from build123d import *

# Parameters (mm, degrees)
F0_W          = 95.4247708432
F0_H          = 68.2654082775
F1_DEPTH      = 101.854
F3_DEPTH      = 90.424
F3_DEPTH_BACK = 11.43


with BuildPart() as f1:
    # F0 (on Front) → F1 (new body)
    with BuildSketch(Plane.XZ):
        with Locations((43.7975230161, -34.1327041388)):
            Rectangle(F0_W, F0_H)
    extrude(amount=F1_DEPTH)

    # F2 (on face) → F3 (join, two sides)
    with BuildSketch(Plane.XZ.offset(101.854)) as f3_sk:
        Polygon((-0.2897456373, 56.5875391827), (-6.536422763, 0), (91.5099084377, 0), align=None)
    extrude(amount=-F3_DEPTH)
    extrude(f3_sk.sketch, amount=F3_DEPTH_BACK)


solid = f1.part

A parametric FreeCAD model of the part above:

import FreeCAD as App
import Part
import Sketcher
Q = App.Units.Quantity


def add_polygon(sketch, points):
    """Adds a closed chain of lines whose ends are joined by coincident constraints."""
    first, n = sketch.GeometryCount, len(points)
    for a, b in zip(points, points[1:] + points[:1]):
        sketch.addGeometry(Part.LineSegment(App.Vector(*a, 0), App.Vector(*b, 0)), False)
    for i in range(n):
        sketch.addConstraint(Sketcher.Constraint("Coincident", first + i, 2, first + (i + 1) % n, 1))

doc = App.newDocument("Part")
body = doc.addObject("PartDesign::Body", "Body")

# Sketch on XZ plane
sketch1 = body.newObject("Sketcher::SketchObject", "Sketch")
sketch1.AttachmentSupport = (doc.getObject("XZ_Plane"), [""])
sketch1.MapMode = "FlatFace"
add_polygon(sketch1, [(-4, 0), (-4, -68), (92, -68), (92, 0)])  # lines 0-3
sketch1.addConstraint([
    Sketcher.Constraint("Vertical", 0),
    Sketcher.Constraint("Horizontal", 1),
    Sketcher.Constraint("Vertical", 2),
    Sketcher.Constraint("Horizontal", 3),
    Sketcher.Constraint("PointOnObject", 2, 2, -1),
    Sketcher.Constraint("DistanceX", 1, 1, 1, 2, 95.424771),
    Sketcher.Constraint("DistanceY", 0, 2, 0, 1, 68.265408),
    Sketcher.Constraint("DistanceX", -1, 1, 1, 2, 91.509908),
])
pad1 = body.newObject("PartDesign::Pad", "Pad")
pad1.Profile = sketch1
pad1.Length = Q("4.01 in")

# Sketch on XZ plane
sketch2 = body.newObject("Sketcher::SketchObject", "Sketch001")
sketch2.AttachmentSupport = (doc.getObject("XZ_Plane"), [""])
sketch2.MapMode = "FlatFace"
sketch2.AttachmentOffset = App.Placement(App.Vector(0, 0, 4.01 * 25.4), App.Rotation())
add_polygon(sketch2, [(0, 57), (-7, 0), (92, 0)])  # lines 0-2
sketch2.addConstraint([
    Sketcher.Constraint("Horizontal", 1),
    Sketcher.Constraint("PointOnObject", 0, 2, -1),
    Sketcher.Constraint("DistanceX", 1, 1, 1, 2, 98.046331),
    Sketcher.Constraint("Distance", 0, 56.931279),
    Sketcher.Constraint("DistanceX", -1, 1, 1, 2, 91.509908),
    Sketcher.Constraint("DistanceY", -1, 1, 2, 2, 56.587539),
])
pad2 = body.newObject("PartDesign::Pad", "Pad001")
pad2.Profile = sketch2
pad2.Type = "TwoLengths"
pad2.Length = Q("3.56 in")
pad2.Length2 = Q("0.45 in")
pad2.Reversed = True

doc.recompute()
